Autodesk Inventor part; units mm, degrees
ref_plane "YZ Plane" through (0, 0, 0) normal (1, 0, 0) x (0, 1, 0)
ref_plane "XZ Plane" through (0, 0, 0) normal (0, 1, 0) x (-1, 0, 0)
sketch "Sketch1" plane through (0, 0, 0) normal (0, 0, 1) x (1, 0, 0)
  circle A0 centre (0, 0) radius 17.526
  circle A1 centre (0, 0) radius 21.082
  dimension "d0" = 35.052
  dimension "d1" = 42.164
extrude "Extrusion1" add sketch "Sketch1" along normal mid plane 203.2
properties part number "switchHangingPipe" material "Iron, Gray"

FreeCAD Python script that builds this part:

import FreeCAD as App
import Part
import Sketcher

V = App.Vector
Q = App.Units.Quantity

doc = App.newDocument("Part")
body = doc.addObject("PartDesign::Body", "Body")

sketch1 = doc.addObject("Sketcher::SketchObject", "Sketch")
body.addObject(sketch1)
sketch1.AttachmentSupport = (doc.XY_Plane, [""])
sketch1.MapMode = "FlatFace"
sketch1.addGeometry([
    Part.Circle(V(0, 0, 0), V(0, 0, 1), 21.082),
    Part.Circle(V(0, 0, 0), V(0, 0, 1), 17.526),
], False)
sketch1.addConstraint([
    Sketcher.Constraint("Coincident", 0, 3, -1, 1),
    Sketcher.Constraint("Coincident", 1, 3, -1, 1),
    Sketcher.Constraint("Diameter", 0, Q("1.66 in")),
    Sketcher.Constraint("Diameter", 1, Q("1.38 in")),
])
pad1 = doc.addObject("PartDesign::Pad", "Pad")
body.addObject(pad1)
pad1.Profile = sketch1
pad1.Length = Q("8 in")
pad1.Midplane = True

doc.recompute()
